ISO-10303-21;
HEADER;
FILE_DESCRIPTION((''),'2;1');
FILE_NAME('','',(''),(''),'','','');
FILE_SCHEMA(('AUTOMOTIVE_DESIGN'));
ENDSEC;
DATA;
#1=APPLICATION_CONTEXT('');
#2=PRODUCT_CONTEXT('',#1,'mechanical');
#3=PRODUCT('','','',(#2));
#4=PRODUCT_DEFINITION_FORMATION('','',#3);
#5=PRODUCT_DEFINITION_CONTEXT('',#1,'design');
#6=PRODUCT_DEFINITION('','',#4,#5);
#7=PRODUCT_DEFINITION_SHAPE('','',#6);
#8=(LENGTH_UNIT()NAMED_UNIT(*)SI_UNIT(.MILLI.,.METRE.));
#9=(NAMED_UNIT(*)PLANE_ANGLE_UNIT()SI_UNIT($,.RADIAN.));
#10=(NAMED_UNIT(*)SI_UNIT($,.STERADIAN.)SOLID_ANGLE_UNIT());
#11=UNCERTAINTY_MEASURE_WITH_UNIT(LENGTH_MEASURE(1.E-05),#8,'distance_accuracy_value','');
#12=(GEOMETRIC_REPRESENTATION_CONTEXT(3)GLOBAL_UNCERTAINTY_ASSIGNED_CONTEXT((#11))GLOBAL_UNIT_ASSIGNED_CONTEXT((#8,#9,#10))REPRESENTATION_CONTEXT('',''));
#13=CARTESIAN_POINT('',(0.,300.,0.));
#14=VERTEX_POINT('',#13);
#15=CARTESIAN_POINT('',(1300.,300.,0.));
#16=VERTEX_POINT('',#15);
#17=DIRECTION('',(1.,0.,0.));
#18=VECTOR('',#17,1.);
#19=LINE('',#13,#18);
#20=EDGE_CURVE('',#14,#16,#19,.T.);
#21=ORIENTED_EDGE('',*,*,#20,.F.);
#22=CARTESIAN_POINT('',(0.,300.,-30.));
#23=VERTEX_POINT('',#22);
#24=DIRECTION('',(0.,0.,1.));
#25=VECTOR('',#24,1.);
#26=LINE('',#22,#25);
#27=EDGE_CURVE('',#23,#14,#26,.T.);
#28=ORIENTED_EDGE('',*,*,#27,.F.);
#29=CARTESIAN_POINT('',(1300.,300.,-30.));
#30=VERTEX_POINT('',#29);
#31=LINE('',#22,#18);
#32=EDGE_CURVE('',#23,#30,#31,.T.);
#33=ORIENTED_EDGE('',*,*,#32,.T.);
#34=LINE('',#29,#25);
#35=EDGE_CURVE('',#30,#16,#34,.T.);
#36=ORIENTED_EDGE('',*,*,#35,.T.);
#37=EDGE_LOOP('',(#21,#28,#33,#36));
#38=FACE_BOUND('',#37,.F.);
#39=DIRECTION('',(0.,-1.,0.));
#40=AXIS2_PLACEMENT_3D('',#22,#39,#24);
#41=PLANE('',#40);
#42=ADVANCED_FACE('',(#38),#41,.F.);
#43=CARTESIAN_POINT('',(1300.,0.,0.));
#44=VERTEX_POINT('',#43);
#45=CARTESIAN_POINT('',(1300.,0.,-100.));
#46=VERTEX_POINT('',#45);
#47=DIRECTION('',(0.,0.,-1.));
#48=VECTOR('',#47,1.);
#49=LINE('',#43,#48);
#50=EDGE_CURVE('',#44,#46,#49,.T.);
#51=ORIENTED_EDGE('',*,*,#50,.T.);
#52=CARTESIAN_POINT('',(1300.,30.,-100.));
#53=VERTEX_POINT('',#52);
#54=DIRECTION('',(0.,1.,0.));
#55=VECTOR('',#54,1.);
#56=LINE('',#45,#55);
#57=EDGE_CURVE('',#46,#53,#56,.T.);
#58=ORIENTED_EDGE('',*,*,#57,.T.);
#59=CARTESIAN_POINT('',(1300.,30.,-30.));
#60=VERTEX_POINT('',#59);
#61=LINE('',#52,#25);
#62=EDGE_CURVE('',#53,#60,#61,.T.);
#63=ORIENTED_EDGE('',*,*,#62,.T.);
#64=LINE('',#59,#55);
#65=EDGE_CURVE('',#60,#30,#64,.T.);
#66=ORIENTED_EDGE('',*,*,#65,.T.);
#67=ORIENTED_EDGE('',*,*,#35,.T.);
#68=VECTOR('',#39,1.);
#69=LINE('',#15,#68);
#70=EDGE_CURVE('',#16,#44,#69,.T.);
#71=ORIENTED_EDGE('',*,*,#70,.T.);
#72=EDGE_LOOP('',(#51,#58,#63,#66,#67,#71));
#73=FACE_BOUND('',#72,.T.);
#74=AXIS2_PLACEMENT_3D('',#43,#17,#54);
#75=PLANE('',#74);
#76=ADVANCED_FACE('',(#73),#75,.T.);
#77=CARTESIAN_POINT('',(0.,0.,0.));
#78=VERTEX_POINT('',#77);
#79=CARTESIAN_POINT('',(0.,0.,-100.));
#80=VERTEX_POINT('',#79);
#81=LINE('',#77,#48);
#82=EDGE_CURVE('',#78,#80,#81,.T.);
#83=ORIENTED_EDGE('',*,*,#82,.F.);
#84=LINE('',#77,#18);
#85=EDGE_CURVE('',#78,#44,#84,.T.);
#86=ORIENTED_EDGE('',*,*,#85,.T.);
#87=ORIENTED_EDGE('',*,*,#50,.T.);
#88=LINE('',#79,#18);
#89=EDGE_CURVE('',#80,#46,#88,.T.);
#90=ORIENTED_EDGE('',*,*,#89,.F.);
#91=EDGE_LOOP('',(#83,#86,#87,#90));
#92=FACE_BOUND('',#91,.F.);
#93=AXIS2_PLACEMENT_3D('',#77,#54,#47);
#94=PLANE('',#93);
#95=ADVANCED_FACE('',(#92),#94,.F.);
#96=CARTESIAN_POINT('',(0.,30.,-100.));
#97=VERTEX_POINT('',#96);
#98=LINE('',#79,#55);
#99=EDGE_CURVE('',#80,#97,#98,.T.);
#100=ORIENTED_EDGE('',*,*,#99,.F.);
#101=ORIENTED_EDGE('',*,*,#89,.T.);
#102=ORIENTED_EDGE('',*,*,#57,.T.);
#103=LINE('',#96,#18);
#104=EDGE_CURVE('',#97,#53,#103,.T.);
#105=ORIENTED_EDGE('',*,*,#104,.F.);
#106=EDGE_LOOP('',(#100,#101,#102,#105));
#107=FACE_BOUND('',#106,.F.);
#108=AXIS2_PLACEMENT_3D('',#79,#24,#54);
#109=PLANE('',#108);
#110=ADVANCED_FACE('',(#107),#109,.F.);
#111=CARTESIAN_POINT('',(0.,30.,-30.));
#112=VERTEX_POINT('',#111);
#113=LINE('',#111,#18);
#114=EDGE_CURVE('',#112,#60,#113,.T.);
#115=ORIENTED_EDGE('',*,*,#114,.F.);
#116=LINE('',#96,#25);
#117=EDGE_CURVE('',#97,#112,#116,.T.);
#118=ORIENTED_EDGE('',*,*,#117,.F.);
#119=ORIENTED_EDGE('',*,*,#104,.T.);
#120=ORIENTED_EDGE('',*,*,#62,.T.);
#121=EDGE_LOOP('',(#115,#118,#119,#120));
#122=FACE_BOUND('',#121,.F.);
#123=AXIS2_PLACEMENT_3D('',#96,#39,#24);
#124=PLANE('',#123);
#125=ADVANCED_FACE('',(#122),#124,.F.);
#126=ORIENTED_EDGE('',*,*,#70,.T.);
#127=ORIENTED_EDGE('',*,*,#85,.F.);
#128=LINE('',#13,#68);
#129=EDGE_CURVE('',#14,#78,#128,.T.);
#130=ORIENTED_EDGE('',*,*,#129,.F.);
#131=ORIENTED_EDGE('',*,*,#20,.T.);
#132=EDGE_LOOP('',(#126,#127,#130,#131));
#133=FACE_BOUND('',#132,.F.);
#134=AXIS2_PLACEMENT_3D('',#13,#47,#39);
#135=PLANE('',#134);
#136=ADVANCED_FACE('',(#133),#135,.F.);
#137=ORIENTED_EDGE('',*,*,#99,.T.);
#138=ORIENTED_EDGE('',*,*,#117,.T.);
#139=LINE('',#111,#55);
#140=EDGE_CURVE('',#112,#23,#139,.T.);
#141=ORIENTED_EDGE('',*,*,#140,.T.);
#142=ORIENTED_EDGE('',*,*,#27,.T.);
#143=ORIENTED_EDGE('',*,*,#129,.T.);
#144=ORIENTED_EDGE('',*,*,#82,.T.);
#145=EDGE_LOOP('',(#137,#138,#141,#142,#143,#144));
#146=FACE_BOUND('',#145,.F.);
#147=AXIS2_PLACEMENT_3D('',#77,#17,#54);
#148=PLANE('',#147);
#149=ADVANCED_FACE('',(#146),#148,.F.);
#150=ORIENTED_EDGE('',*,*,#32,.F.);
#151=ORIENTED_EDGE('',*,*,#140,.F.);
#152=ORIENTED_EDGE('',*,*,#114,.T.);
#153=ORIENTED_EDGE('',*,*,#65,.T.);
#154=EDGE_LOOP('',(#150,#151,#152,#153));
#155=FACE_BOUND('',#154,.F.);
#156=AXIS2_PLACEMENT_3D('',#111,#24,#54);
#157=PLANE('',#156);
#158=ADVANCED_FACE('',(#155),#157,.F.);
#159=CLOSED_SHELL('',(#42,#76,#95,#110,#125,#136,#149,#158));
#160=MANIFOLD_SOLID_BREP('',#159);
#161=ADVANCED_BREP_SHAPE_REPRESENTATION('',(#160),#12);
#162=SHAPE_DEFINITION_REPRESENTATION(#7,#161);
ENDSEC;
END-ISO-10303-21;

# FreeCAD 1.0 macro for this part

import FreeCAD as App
import Part
import Sketcher

V = App.Vector


def add_polygon(sketch, points):
    """Adds a closed chain of lines whose ends are joined by coincident constraints."""
    first, n = sketch.GeometryCount, len(points)
    for a, b in zip(points, points[1:] + points[:1]):
        sketch.addGeometry(Part.LineSegment(App.Vector(*a, 0), App.Vector(*b, 0)), False)
    for i in range(n):
        sketch.addConstraint(Sketcher.Constraint("Coincident", first + i, 2, first + (i + 1) % n, 1))

doc = App.newDocument("Part")
body = doc.addObject("PartDesign::Body", "Body")

# Sketch on YZ plane
sketch1 = doc.addObject("Sketcher::SketchObject", "Sketch")
body.addObject(sketch1)
sketch1.AttachmentSupport = (doc.YZ_Plane, [""])
sketch1.MapMode = "FlatFace"
add_polygon(sketch1, [(300, 0), (0, 0), (0, -100), (30, -100), (30, -30), (300, -30)])  # lines 0-5
sketch1.addConstraint(Sketcher.Constraint("Horizontal", 0))
sketch1.addConstraint(Sketcher.Constraint("Vertical", 1))
sketch1.addConstraint(Sketcher.Constraint("Horizontal", 2))
sketch1.addConstraint(Sketcher.Constraint("Vertical", 3))
sketch1.addConstraint(Sketcher.Constraint("Horizontal", 4))
sketch1.addConstraint(Sketcher.Constraint("Vertical", 5))
sketch1.addConstraint(Sketcher.Constraint("Coincident", 0, 2, -1, 1))
sketch1.addConstraint(Sketcher.Constraint("Equal", 2, 5))
sketch1.addConstraint(Sketcher.Constraint("DistanceX", 0, 2, 0, 1, 300.0))
sketch1.addConstraint(Sketcher.Constraint("DistanceX", 2, 1, 2, 2, 30.0))
sketch1.addConstraint(Sketcher.Constraint("DistanceY", 1, 2, 1, 1, 100.0))
pad1 = doc.addObject("PartDesign::Pad", "Pad")
body.addObject(pad1)
pad1.Profile = sketch1
pad1.Length = 1300

doc.recompute()
